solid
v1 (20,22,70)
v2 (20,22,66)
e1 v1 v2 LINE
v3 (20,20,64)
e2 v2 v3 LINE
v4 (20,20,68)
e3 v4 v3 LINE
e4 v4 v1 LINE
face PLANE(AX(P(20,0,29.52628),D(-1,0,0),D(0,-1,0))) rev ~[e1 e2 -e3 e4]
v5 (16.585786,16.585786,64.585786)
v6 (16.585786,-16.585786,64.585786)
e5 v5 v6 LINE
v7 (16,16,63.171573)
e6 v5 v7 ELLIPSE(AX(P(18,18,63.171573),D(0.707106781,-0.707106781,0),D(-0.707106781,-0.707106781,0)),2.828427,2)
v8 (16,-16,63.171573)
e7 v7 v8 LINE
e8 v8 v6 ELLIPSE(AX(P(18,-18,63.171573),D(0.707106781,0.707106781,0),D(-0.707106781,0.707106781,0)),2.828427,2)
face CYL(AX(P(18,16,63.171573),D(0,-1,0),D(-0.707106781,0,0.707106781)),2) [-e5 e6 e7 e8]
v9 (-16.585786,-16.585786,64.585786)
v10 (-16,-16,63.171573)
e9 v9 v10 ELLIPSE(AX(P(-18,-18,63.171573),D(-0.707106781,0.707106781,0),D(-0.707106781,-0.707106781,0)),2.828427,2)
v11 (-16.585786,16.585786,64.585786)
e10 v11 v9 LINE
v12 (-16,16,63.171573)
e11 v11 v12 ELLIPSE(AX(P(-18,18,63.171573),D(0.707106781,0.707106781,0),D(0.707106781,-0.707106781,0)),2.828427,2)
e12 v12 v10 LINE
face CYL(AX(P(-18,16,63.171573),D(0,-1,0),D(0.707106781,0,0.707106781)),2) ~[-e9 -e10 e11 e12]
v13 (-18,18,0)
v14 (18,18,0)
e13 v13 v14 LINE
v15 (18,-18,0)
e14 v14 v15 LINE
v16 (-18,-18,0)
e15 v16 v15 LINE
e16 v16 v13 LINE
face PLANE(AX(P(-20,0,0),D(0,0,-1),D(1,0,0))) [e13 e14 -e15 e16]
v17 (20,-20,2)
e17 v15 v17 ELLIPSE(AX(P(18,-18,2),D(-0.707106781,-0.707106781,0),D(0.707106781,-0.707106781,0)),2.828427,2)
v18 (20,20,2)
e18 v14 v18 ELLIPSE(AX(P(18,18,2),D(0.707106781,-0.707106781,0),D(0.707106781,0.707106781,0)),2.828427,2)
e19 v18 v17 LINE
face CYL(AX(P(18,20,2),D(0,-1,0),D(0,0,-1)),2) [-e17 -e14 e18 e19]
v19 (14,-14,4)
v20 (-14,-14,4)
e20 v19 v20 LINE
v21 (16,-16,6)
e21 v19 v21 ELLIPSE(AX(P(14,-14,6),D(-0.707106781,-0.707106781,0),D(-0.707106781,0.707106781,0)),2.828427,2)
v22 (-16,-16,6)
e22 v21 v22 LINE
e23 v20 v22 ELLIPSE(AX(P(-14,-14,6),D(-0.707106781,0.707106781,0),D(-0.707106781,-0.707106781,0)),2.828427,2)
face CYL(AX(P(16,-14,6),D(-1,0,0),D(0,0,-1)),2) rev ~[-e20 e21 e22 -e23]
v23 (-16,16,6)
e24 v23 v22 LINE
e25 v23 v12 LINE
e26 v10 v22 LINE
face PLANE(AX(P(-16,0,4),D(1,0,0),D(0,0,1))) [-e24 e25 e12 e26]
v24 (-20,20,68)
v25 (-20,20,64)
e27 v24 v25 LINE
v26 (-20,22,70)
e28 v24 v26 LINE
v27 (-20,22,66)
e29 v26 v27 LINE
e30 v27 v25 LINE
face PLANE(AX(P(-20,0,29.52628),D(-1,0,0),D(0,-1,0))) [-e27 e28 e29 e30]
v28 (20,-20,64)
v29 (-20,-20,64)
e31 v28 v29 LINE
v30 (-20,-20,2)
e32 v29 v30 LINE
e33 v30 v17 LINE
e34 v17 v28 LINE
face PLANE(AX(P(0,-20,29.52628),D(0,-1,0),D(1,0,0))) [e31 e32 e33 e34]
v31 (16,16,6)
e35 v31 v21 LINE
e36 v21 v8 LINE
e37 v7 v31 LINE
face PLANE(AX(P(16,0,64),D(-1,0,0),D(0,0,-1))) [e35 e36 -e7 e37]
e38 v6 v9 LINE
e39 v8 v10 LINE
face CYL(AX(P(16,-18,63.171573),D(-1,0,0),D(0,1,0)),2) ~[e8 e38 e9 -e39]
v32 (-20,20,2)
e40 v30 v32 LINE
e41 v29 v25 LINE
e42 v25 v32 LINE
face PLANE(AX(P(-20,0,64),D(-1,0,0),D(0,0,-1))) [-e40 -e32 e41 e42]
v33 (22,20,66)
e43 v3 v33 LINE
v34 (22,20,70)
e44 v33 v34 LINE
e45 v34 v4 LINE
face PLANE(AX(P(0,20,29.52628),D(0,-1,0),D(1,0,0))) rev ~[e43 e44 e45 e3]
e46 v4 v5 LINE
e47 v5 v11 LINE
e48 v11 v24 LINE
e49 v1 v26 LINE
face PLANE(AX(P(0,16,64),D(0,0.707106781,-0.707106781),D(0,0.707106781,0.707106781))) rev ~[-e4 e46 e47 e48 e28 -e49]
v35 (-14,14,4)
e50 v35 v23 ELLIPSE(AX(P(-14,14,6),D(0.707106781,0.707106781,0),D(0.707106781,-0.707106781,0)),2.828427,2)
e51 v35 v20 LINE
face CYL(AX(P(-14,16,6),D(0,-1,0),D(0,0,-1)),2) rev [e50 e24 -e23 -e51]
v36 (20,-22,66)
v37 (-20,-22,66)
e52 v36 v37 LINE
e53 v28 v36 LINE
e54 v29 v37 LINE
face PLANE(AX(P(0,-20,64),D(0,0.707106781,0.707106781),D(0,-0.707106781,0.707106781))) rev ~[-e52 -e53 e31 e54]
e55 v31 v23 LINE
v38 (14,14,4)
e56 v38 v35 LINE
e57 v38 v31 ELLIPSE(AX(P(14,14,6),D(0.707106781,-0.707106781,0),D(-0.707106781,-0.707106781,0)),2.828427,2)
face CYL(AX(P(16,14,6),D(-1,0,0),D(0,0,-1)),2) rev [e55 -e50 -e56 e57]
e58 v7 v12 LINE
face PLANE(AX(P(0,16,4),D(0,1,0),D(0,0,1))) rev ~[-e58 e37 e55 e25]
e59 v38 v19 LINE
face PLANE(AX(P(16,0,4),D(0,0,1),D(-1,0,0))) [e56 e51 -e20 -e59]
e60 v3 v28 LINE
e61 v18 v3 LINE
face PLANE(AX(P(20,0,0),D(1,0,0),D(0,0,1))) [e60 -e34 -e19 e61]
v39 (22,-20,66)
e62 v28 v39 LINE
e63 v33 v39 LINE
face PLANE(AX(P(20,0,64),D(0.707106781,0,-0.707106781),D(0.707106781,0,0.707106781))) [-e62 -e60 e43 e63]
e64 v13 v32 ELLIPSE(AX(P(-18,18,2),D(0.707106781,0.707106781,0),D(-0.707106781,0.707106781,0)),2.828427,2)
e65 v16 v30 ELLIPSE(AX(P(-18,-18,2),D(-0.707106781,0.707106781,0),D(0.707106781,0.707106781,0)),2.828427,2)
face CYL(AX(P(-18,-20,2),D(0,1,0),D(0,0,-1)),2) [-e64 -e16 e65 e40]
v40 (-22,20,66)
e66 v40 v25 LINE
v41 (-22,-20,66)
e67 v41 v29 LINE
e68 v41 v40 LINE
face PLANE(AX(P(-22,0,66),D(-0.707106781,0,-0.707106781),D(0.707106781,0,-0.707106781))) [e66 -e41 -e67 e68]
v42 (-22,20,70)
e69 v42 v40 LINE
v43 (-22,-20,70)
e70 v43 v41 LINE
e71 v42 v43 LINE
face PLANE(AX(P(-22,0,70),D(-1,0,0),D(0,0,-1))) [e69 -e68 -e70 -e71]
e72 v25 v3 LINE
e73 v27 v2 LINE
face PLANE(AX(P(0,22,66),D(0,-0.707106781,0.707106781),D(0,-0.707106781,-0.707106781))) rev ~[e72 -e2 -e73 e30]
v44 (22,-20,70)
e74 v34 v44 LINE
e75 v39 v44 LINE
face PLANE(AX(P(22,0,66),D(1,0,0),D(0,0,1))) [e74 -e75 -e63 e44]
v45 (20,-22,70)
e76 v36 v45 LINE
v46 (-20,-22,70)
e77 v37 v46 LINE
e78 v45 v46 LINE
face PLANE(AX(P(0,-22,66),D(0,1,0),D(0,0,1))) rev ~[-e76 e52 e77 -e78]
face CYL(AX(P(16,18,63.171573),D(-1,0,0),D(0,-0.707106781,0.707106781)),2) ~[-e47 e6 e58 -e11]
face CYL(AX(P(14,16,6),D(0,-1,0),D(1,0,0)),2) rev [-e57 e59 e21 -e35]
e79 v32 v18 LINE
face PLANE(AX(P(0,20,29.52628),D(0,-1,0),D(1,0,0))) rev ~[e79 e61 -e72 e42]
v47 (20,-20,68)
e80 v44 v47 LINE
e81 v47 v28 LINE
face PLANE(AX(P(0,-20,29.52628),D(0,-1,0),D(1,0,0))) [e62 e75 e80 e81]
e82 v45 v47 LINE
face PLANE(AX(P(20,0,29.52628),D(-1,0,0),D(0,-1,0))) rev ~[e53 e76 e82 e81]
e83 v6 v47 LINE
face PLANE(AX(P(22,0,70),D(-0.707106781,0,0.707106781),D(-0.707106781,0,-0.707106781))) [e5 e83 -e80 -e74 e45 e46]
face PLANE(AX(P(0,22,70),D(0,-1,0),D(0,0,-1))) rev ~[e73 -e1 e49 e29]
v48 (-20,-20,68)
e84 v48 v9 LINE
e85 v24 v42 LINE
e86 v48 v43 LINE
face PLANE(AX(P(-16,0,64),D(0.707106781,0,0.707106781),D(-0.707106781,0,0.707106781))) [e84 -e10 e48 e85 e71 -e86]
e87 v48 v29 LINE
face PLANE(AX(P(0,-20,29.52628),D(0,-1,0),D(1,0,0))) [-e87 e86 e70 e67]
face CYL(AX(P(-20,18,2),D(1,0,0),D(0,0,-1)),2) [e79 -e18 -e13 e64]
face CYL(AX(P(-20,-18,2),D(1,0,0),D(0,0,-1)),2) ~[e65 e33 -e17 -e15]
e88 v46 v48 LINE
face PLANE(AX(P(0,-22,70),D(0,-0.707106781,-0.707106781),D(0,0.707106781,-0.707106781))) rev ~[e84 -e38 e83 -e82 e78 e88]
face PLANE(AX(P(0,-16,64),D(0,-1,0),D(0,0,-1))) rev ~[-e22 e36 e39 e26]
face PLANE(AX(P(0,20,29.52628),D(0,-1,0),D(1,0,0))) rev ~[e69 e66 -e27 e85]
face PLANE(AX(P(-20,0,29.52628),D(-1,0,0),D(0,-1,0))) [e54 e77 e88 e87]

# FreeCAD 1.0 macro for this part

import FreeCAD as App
import Part
import Sketcher


def edges_at(feature, points):
    """Names of the edges that pass closest to the given points."""
    edges = feature.Shape.Edges
    near = lambda p: min(range(len(edges)), key=lambda i: edges[i].distToShape(Part.Vertex(*p))[0])
    return sorted({f"Edge{near(p) + 1}" for p in points})


def add_polygon(sketch, points):
    """Adds a closed chain of lines whose ends are joined by coincident constraints."""
    first, n = sketch.GeometryCount, len(points)
    for a, b in zip(points, points[1:] + points[:1]):
        sketch.addGeometry(Part.LineSegment(App.Vector(*a, 0), App.Vector(*b, 0)), False)
    for i in range(n):
        sketch.addConstraint(Sketcher.Constraint("Coincident", first + i, 2, first + (i + 1) % n, 1))

doc = App.newDocument("Part")
params = doc.addObject("Spreadsheet::Sheet", "Params")
for row, (alias, value) in enumerate([
    ("sketch1_width", "40 mm"),
    ("sketch1_width2", "32 mm"),
    ("sketch1_height", "64 mm"),
    ("sketch1_height2", "60 mm"),
    ("pad1_length", "40 mm"),
    ("sketch2_width", "40 mm"),
    ("sketch2_width2", "32 mm"),
    ("sketch2_height", "64 mm"),
    ("sketch2_height2", "60 mm"),
    ("pad2_length", "40 mm"),
    ("fillet_radius", "2 mm"),
], start=1):
    params.set(f"A{row}", alias)
    params.set(f"B{row}", "=" + value)
    params.setAlias(f"B{row}", alias)

body = doc.addObject("PartDesign::Body", "Body")

sketch1 = body.newObject("Sketcher::SketchObject", "Sketch")
sketch1.AttachmentSupport = (doc.getObject("YZ_Plane"), [""])
sketch1.MapMode = "FlatFace"
add_polygon(sketch1, [(-20, 0), (20, 0), (20, 64), (22, 66), (22, 70), (16, 64), (16, 4), (-16, 4), (-16, 64), (-22, 70), (-22, 66), (-20, 64)])
sketch1.addConstraint(Sketcher.Constraint("Horizontal", 0))
sketch1.addConstraint(Sketcher.Constraint("Vertical", 1))
sketch1.addConstraint(Sketcher.Constraint("Vertical", 3))
sketch1.addConstraint(Sketcher.Constraint("Vertical", 5))
sketch1.addConstraint(Sketcher.Constraint("Horizontal", 6))
sketch1.addConstraint(Sketcher.Constraint("Vertical", 7))
sketch1.addConstraint(Sketcher.Constraint("Vertical", 9))
sketch1.addConstraint(Sketcher.Constraint("Vertical", 11))
sketch1.addConstraint(Sketcher.Constraint("Symmetric", 0, 2, 11, 2, -1, 1))
sketch1.addConstraint(Sketcher.Constraint("Symmetric", 4, 2, 7, 2, -2))
sketch1.addConstraint(Sketcher.Constraint("Symmetric", 3, 2, 8, 2, -2))
sketch1.addConstraint(Sketcher.Constraint("Parallel", 2, 4))
sketch1.addConstraint(Sketcher.Constraint("Perpendicular", 4, 8))
sketch1.addConstraint(Sketcher.Constraint("Parallel", 8, 10))
sketch1.addConstraint(Sketcher.Constraint("Horizontal", 1, 2, 4, 2))
sketch1.addConstraint(Sketcher.Constraint("Horizontal", 2, 2, 9, 2))
sketch1.addConstraint(Sketcher.Constraint("DistanceX", 0, 1, 0, 2, 40.0))
sketch1.addConstraint(Sketcher.Constraint("DistanceX", 6, 2, 6, 1, 32.0))
sketch1.addConstraint(Sketcher.Constraint("DistanceY", 1, 1, 1, 2, 64.0))
sketch1.addConstraint(Sketcher.Constraint("DistanceY", 5, 2, 5, 1, 60.0))
sketch1.addConstraint(Sketcher.Constraint("DistanceX", -1, 1, 2, 2, 22.0))
sketch1.setExpression("Constraints[28]", "Params.sketch1_width")
sketch1.setExpression("Constraints[29]", "Params.sketch1_width2")
sketch1.setExpression("Constraints[30]", "Params.sketch1_height")
sketch1.setExpression("Constraints[31]", "Params.sketch1_height2")
pad1 = body.newObject("PartDesign::Pad", "Pad")
pad1.Profile = sketch1
pad1.setExpression("Length", "Params.pad1_length")
pad1.Midplane = True
body2 = doc.addObject("PartDesign::Body", "Body001")

sketch2 = body2.newObject("Sketcher::SketchObject", "Sketch001")
sketch2.AttachmentSupport = (doc.getObject("XZ_Plane001"), [""])
sketch2.MapMode = "FlatFace"
add_polygon(sketch2, [(-20, 0), (20, 0), (20, 64), (22, 66), (22, 70), (16, 64), (16, 4), (-16, 4), (-16, 64), (-22, 70), (-22, 66), (-20, 64)])
sketch2.addConstraint(Sketcher.Constraint("Horizontal", 0))
sketch2.addConstraint(Sketcher.Constraint("Vertical", 1))
sketch2.addConstraint(Sketcher.Constraint("Vertical", 3))
sketch2.addConstraint(Sketcher.Constraint("Vertical", 5))
sketch2.addConstraint(Sketcher.Constraint("Horizontal", 6))
sketch2.addConstraint(Sketcher.Constraint("Vertical", 7))
sketch2.addConstraint(Sketcher.Constraint("Vertical", 9))
sketch2.addConstraint(Sketcher.Constraint("Vertical", 11))
sketch2.addConstraint(Sketcher.Constraint("Symmetric", 0, 2, 11, 2, -1, 1))
sketch2.addConstraint(Sketcher.Constraint("Symmetric", 4, 2, 7, 2, -2))
sketch2.addConstraint(Sketcher.Constraint("Symmetric", 3, 2, 8, 2, -2))
sketch2.addConstraint(Sketcher.Constraint("Parallel", 2, 4))
sketch2.addConstraint(Sketcher.Constraint("Perpendicular", 4, 8))
sketch2.addConstraint(Sketcher.Constraint("Parallel", 8, 10))
sketch2.addConstraint(Sketcher.Constraint("Horizontal", 1, 2, 4, 2))
sketch2.addConstraint(Sketcher.Constraint("Horizontal", 2, 2, 9, 2))
sketch2.addConstraint(Sketcher.Constraint("DistanceX", 0, 1, 0, 2, 40.0))
sketch2.addConstraint(Sketcher.Constraint("DistanceX", 6, 2, 6, 1, 32.0))
sketch2.addConstraint(Sketcher.Constraint("DistanceY", 1, 1, 1, 2, 64.0))
sketch2.addConstraint(Sketcher.Constraint("DistanceY", 5, 2, 5, 1, 60.0))
sketch2.addConstraint(Sketcher.Constraint("DistanceX", -1, 1, 2, 2, 22.0))
sketch2.setExpression("Constraints[28]", "Params.sketch2_width")
sketch2.setExpression("Constraints[29]", "Params.sketch2_width2")
sketch2.setExpression("Constraints[30]", "Params.sketch2_height")
sketch2.setExpression("Constraints[31]", "Params.sketch2_height2")
pad2 = body2.newObject("PartDesign::Pad", "Pad001")
pad2.Profile = sketch2
pad2.setExpression("Length", "Params.pad2_length")
pad2.Midplane = True
doc.recompute()

boolean = body2.newObject("PartDesign::Boolean", "Boolean")
boolean.Type = "Fuse"
boolean.addObjects([body])
doc.recompute()

fillet = body2.newObject("PartDesign::Fillet", "Fillet")
fillet.Base = (boolean, edges_at(boolean, [
    (-20, 0, 0),
    (-16, 0, 64),
    (0, 20, 0),
    (20, 0, 0),
    (0, -20, 0),
    (0, 16, 64),
    (-16, 0, 4),
    (0, -16, 64),
    (0, 16, 4),
    (16, 0, 64),
    (0, -16, 4),
    (16, 0, 4),
]))
fillet.setExpression("Radius", "Params.fillet_radius")

doc.recompute()
